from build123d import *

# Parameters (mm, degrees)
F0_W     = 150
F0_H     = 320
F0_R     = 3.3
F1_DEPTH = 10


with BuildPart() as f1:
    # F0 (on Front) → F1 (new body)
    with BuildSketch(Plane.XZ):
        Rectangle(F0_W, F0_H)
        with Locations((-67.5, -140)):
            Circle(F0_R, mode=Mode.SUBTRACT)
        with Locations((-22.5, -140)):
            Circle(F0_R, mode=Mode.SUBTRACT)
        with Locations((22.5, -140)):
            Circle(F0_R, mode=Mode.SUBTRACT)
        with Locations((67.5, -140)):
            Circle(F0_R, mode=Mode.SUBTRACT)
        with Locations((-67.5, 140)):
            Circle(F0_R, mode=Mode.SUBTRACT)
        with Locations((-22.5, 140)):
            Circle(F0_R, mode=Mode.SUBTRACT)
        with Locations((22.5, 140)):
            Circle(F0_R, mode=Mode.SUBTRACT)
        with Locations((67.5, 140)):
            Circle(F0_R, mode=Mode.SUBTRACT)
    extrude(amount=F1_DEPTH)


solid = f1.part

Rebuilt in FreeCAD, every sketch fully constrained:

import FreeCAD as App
import Part
import Sketcher

V = App.Vector
Q = App.Units.Quantity


def add_polygon(sketch, points):
    """Adds a closed chain of lines whose ends are joined by coincident constraints."""
    first, n = sketch.GeometryCount, len(points)
    for a, b in zip(points, points[1:] + points[:1]):
        sketch.addGeometry(Part.LineSegment(App.Vector(*a, 0), App.Vector(*b, 0)), False)
    for i in range(n):
        sketch.addConstraint(Sketcher.Constraint("Coincident", first + i, 2, first + (i + 1) % n, 1))

doc = App.newDocument("Part")
body = doc.addObject("PartDesign::Body", "Body")

sketch1 = body.newObject("Sketcher::SketchObject", "Sketch")
sketch1.AttachmentSupport = (doc.getObject("XZ_Plane"), [""])
sketch1.MapMode = "FlatFace"
add_polygon(sketch1, [(-75, 160), (-75, -160), (75, -160), (75, 160)])
sketch1.addGeometry(Part.Circle(V(-67.5, -140, 0), V(0, 0, 1), 3.3), False)
sketch1.addGeometry(Part.Circle(V(-22.5, -140, 0), V(0, 0, 1), 3.3), False)
sketch1.addGeometry(Part.Circle(V(22.5, -140, 0), V(0, 0, 1), 3.3), False)
sketch1.addGeometry(Part.Circle(V(67.5, -140, 0), V(0, 0, 1), 3.3), False)
sketch1.addGeometry(Part.Circle(V(-67.5, 140, 0), V(0, 0, 1), 3.3), False)
sketch1.addGeometry(Part.Circle(V(-22.5, 140, 0), V(0, 0, 1), 3.3), False)
sketch1.addGeometry(Part.Circle(V(22.5, 140, 0), V(0, 0, 1), 3.3), False)
sketch1.addGeometry(Part.Circle(V(67.5, 140, 0), V(0, 0, 1), 3.3), False)
sketch1.addConstraint(Sketcher.Constraint("Vertical", 0))
sketch1.addConstraint(Sketcher.Constraint("Horizontal", 1))
sketch1.addConstraint(Sketcher.Constraint("Vertical", 2))
sketch1.addConstraint(Sketcher.Constraint("Horizontal", 3))
sketch1.addConstraint(Sketcher.Constraint("Equal", 4, 5))
sketch1.addConstraint(Sketcher.Constraint("Equal", 5, 6))
sketch1.addConstraint(Sketcher.Constraint("Equal", 6, 7))
sketch1.addConstraint(Sketcher.Constraint("Equal", 7, 8))
sketch1.addConstraint(Sketcher.Constraint("Equal", 8, 9))
sketch1.addConstraint(Sketcher.Constraint("Equal", 9, 10))
sketch1.addConstraint(Sketcher.Constraint("Equal", 10, 11))
sketch1.addConstraint(Sketcher.Constraint("Symmetric", 7, 3, 8, 3, -1, 1))
sketch1.addConstraint(Sketcher.Constraint("Symmetric", 6, 3, 9, 3, -1, 1))
sketch1.addConstraint(Sketcher.Constraint("Symmetric", 5, 3, 10, 3, -1, 1))
sketch1.addConstraint(Sketcher.Constraint("Symmetric", 4, 3, 11, 3, -1, 1))
sketch1.addConstraint(Sketcher.Constraint("Symmetric", 0, 2, 2, 2, -1, 1))
sketch1.addConstraint(Sketcher.Constraint("Symmetric", 5, 3, 6, 3, -2))
sketch1.addConstraint(Sketcher.Constraint("Symmetric", 4, 3, 7, 3, -2))
sketch1.addConstraint(Sketcher.Constraint("Horizontal", 4, 3, 5, 3))
sketch1.addConstraint(Sketcher.Constraint("Diameter", 4, Q("6.6 mm")))
sketch1.addConstraint(Sketcher.Constraint("DistanceX", 1, 1, 1, 2, Q("150 mm")))
sketch1.addConstraint(Sketcher.Constraint("DistanceY", 0, 2, 0, 1, Q("320 mm")))
sketch1.addConstraint(Sketcher.Constraint("DistanceY", 4, 3, -1, 1, Q("140 mm")))
sketch1.addConstraint(Sketcher.Constraint("DistanceX", 4, 3, 5, 3, Q("45 mm")))
sketch1.addConstraint(Sketcher.Constraint("DistanceX", 5, 3, 6, 3, Q("45 mm")))
pad1 = body.newObject("PartDesign::Pad", "Pad")
pad1.Profile = sketch1
pad1.Length = 10

doc.recompute()
